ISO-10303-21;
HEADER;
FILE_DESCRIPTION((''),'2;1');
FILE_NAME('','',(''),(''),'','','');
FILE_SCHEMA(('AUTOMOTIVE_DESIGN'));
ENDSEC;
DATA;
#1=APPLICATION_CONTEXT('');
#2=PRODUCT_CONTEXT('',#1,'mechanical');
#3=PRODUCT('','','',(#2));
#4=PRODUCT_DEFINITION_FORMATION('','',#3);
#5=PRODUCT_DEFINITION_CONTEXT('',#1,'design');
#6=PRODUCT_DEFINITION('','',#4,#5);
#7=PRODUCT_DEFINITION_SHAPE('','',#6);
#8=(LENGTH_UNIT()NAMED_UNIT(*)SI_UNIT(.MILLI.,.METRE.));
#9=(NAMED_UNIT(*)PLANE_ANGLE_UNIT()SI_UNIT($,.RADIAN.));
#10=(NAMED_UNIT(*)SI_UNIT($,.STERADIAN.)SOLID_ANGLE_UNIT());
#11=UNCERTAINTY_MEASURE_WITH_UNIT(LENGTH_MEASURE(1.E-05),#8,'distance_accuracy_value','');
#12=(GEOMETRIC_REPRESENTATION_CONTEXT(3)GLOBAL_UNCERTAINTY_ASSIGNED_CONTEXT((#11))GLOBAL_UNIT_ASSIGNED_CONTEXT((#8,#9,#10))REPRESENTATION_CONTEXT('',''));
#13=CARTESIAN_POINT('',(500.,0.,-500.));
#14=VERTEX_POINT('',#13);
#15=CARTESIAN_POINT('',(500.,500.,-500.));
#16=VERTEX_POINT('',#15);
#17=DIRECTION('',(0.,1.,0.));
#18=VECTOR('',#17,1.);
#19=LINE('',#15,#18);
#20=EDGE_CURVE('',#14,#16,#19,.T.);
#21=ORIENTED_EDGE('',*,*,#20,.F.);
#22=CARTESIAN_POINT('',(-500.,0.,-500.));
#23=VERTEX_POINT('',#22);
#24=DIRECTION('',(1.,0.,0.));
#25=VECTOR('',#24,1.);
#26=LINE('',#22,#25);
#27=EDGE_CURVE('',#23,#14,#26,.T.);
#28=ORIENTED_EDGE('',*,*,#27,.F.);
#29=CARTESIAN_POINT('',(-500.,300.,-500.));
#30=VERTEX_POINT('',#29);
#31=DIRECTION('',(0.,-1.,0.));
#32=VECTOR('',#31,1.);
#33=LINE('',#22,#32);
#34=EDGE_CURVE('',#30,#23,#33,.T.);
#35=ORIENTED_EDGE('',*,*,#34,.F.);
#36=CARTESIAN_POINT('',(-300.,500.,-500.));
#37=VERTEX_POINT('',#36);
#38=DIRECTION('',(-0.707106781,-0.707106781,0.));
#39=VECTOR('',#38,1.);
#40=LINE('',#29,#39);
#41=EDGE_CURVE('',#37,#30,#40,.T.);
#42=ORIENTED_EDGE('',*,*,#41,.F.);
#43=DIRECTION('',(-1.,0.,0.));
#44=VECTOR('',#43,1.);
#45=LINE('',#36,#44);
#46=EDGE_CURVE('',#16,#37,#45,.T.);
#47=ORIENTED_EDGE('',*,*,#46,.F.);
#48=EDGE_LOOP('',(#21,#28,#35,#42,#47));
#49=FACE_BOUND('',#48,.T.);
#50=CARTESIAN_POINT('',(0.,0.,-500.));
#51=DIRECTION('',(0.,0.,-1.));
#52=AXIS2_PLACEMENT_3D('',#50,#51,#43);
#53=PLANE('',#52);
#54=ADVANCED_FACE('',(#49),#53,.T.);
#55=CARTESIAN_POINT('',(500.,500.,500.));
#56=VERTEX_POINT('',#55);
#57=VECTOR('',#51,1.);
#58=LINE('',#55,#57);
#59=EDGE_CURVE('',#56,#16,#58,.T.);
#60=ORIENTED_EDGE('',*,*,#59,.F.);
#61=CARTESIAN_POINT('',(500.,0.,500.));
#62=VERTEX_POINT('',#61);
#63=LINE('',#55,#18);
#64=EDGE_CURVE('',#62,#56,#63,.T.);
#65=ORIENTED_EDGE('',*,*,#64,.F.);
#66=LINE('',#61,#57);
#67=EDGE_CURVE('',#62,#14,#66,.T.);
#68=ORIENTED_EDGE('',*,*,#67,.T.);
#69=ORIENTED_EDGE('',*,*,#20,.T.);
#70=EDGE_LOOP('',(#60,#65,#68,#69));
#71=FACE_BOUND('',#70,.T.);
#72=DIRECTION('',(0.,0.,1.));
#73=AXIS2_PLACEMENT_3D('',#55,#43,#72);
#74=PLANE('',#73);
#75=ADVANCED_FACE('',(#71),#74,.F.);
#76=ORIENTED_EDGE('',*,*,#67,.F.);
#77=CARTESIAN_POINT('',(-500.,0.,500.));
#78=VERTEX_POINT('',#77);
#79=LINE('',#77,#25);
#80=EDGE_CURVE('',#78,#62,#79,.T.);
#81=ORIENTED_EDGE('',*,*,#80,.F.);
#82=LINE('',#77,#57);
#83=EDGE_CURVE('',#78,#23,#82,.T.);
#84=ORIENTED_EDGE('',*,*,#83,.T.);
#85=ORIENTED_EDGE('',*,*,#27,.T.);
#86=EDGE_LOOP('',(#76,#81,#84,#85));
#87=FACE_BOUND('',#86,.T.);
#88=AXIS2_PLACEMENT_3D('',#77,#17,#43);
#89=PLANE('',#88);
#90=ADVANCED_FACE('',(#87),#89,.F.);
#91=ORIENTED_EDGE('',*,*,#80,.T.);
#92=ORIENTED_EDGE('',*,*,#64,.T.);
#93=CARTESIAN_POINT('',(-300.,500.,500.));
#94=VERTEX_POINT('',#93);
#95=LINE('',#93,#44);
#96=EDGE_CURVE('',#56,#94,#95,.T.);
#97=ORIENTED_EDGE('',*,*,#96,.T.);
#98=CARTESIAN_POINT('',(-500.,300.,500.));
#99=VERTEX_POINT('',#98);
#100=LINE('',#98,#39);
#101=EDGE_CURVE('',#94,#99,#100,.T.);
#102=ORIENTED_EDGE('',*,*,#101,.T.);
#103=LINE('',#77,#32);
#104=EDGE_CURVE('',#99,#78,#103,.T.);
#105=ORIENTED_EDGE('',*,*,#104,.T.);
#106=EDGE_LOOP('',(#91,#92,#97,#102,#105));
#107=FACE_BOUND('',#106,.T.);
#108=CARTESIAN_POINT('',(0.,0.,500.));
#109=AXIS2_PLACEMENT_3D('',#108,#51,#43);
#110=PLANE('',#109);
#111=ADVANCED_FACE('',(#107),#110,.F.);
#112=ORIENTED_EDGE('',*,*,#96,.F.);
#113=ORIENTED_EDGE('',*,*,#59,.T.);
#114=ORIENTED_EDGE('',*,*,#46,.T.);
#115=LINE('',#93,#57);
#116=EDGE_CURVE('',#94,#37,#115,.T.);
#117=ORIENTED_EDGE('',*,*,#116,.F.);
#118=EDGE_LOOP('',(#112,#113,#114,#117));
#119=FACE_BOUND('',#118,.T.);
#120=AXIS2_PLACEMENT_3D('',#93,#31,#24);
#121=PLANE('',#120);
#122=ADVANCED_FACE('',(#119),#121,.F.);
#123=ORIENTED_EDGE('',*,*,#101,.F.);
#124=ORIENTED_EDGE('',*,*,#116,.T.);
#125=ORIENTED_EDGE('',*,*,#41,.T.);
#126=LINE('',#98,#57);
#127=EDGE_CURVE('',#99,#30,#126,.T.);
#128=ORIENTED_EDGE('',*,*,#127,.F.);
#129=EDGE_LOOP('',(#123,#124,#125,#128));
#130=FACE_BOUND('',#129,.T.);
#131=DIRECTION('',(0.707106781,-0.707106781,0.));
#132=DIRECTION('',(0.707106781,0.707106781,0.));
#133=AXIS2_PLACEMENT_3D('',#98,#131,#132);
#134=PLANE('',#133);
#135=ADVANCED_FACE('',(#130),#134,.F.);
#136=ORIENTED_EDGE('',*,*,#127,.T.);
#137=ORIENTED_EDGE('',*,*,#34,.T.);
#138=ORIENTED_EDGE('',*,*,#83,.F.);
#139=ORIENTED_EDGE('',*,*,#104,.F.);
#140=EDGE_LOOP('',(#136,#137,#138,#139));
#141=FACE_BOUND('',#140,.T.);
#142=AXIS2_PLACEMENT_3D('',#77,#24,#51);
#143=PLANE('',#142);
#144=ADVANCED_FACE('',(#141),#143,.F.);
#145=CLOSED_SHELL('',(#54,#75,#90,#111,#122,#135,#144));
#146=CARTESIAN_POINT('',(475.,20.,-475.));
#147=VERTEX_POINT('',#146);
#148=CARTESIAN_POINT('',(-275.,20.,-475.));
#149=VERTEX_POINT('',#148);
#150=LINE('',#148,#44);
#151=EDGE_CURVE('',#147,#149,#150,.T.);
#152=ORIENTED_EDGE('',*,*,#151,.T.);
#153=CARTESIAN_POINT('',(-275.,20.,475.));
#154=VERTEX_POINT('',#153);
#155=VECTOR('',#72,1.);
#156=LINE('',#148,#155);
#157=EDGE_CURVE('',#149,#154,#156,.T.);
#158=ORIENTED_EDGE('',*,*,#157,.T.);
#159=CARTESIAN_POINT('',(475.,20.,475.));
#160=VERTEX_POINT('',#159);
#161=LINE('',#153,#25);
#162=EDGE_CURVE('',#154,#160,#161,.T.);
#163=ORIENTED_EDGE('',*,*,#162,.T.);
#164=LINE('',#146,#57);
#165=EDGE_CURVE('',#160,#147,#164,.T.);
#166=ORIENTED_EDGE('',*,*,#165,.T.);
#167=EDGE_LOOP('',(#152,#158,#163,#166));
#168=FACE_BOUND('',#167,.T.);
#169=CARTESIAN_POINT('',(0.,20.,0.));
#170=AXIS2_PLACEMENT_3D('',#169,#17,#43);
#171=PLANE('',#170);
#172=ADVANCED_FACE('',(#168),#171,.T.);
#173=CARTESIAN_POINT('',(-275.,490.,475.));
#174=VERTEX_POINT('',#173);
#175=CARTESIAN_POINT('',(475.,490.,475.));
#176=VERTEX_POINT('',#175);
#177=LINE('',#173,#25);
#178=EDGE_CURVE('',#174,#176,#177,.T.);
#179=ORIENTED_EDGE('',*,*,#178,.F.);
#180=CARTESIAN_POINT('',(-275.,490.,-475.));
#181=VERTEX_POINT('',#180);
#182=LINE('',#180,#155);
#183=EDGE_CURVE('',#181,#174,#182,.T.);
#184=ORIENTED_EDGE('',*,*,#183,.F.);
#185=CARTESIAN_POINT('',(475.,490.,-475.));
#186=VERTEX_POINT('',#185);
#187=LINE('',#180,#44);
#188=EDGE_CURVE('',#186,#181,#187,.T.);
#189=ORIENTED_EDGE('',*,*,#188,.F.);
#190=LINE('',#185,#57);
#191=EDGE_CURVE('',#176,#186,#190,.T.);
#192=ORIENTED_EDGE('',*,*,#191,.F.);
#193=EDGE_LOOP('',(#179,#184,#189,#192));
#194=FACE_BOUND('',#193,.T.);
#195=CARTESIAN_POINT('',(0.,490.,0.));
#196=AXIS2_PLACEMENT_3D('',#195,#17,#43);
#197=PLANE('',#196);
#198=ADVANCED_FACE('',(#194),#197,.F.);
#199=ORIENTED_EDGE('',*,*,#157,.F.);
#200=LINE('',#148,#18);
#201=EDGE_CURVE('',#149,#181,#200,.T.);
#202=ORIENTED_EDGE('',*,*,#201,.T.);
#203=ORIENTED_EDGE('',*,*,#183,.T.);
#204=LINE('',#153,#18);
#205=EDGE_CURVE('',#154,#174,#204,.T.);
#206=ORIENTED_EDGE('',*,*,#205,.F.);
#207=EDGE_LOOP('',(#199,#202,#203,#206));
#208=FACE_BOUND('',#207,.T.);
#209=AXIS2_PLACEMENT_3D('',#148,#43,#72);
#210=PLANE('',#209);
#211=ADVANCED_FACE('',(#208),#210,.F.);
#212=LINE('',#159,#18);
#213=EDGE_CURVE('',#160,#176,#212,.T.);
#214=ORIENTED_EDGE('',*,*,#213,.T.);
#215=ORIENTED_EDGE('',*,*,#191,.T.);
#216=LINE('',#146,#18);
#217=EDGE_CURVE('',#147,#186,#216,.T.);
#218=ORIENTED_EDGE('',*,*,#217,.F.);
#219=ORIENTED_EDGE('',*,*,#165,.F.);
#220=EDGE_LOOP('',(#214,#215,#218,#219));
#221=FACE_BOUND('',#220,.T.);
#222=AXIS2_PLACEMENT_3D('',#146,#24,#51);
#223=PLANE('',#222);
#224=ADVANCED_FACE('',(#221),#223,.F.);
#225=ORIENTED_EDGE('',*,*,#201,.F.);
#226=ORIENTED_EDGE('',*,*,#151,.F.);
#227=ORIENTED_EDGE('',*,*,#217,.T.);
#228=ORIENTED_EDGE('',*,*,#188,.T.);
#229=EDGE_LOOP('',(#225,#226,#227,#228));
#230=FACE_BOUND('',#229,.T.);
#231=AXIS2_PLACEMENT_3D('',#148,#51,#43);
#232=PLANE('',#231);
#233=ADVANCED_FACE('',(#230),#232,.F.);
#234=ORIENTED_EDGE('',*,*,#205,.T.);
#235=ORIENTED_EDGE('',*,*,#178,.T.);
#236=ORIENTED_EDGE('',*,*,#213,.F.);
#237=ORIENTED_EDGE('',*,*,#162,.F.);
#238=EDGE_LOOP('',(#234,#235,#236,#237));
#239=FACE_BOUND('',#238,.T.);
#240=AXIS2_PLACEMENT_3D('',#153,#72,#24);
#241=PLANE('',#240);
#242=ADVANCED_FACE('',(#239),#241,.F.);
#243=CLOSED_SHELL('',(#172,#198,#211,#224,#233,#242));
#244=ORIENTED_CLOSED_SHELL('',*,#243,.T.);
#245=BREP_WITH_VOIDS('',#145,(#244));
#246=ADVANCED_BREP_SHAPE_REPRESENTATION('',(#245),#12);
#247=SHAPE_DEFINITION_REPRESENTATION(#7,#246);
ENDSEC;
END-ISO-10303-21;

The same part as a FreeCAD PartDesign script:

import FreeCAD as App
import Part
import Sketcher
from FreeCAD import Vector
Q = App.Units.Quantity

doc = App.newDocument("Part")
params = doc.addObject("Spreadsheet::Sheet", "Params")
for row, (alias, value) in enumerate([
    ("sketch1_width", "1000 mm"),
    ("sketch1_width2", "800 mm"),
    ("sketch1_height", "500 mm"),
    ("sketch1_height2", "300 mm"),
    ("pad1_length", "1000 mm"),
    ("sketch2_width", "750 mm"),
    ("sketch2_height", "950 mm"),
    ("pocket1_length", "480 mm"),
    ("sketch3_width", "750 mm"),
    ("sketch3_height", "950 mm"),
    ("pad2_length", "10 mm"),
], start=1):
    params.set(f"A{row}", alias)
    params.set(f"B{row}", "=" + value)
    params.setAlias(f"B{row}", alias)

body = doc.addObject("PartDesign::Body", "Body")

# Sketch on XY plane
sketch1 = body.newObject("Sketcher::SketchObject", "Sketch")
sketch1.AttachmentSupport = (doc.getObject("XY_Plane"), [""])
sketch1.MapMode = "FlatFace"
sketch1.addGeometry(Part.LineSegment(Vector(-500, 0, 0), Vector(500, 0, 0)), False)
sketch1.addGeometry(Part.LineSegment(Vector(500, 0, 0), Vector(500, 500, 0)), False)
sketch1.addGeometry(Part.LineSegment(Vector(500, 500, 0), Vector(-300, 500, 0)), False)
sketch1.addGeometry(Part.LineSegment(Vector(-300, 500, 0), Vector(-500, 300, 0)), False)
sketch1.addGeometry(Part.LineSegment(Vector(-500, 300, 0), Vector(-500, 0, 0)), False)
sketch1.addConstraint(Sketcher.Constraint("Coincident", 0, 2, 1, 1))
sketch1.addConstraint(Sketcher.Constraint("Coincident", 1, 2, 2, 1))
sketch1.addConstraint(Sketcher.Constraint("Coincident", 2, 2, 3, 1))
sketch1.addConstraint(Sketcher.Constraint("Coincident", 3, 2, 4, 1))
sketch1.addConstraint(Sketcher.Constraint("Coincident", 4, 2, 0, 1))
sketch1.addConstraint(Sketcher.Constraint("Horizontal", 0))
sketch1.addConstraint(Sketcher.Constraint("Vertical", 1))
sketch1.addConstraint(Sketcher.Constraint("Horizontal", 2))
sketch1.addConstraint(Sketcher.Constraint("Vertical", 4))
sketch1.addConstraint(Sketcher.Constraint("Symmetric", 0, 2, 4, 2, -1, 1))
sketch1.addConstraint(Sketcher.Constraint("DistanceX", 0, 1, 0, 2, Q("1000 mm")))
sketch1.addConstraint(Sketcher.Constraint("DistanceX", 2, 2, 2, 1, Q("800 mm")))
sketch1.addConstraint(Sketcher.Constraint("DistanceY", 1, 1, 1, 2, Q("500 mm")))
sketch1.addConstraint(Sketcher.Constraint("DistanceY", 4, 2, 4, 1, Q("300 mm")))
sketch1.setExpression("Constraints[10]", "Params.sketch1_width")
sketch1.setExpression("Constraints[11]", "Params.sketch1_width2")
sketch1.setExpression("Constraints[12]", "Params.sketch1_height")
sketch1.setExpression("Constraints[13]", "Params.sketch1_height2")
pad1 = body.newObject("PartDesign::Pad", "Pad")
pad1.Profile = sketch1
pad1.setExpression("Length", "Params.pad1_length")
pad1.Midplane = True

# Sketch on XZ plane
sketch2 = body.newObject("Sketcher::SketchObject", "Sketch001")
sketch2.AttachmentSupport = (doc.getObject("XZ_Plane"), [""])
sketch2.MapMode = "FlatFace"
sketch2.AttachmentOffset = App.Placement(Vector(0, 0, -500), App.Rotation())
sketch2.addGeometry(Part.LineSegment(Vector(-275, -475, 0), Vector(-275, 475, 0)), False)
sketch2.addGeometry(Part.LineSegment(Vector(-275, 475, 0), Vector(475, 475, 0)), False)
sketch2.addGeometry(Part.LineSegment(Vector(475, 475, 0), Vector(475, -475, 0)), False)
sketch2.addGeometry(Part.LineSegment(Vector(475, -475, 0), Vector(-275, -475, 0)), False)
sketch2.addConstraint(Sketcher.Constraint("Coincident", 0, 2, 1, 1))
sketch2.addConstraint(Sketcher.Constraint("Coincident", 1, 2, 2, 1))
sketch2.addConstraint(Sketcher.Constraint("Coincident", 2, 2, 3, 1))
sketch2.addConstraint(Sketcher.Constraint("Coincident", 3, 2, 0, 1))
sketch2.addConstraint(Sketcher.Constraint("Vertical", 0))
sketch2.addConstraint(Sketcher.Constraint("Horizontal", 1))
sketch2.addConstraint(Sketcher.Constraint("Vertical", 2))
sketch2.addConstraint(Sketcher.Constraint("Horizontal", 3))
sketch2.addConstraint(Sketcher.Constraint("DistanceX", 1, 1, 1, 2, Q("750 mm")))
sketch2.addConstraint(Sketcher.Constraint("DistanceY", 0, 1, 0, 2, Q("950 mm")))
sketch2.addConstraint(Sketcher.Constraint("DistanceX", 0, 2, -1, 1, Q("275 mm")))
sketch2.addConstraint(Sketcher.Constraint("DistanceY", -1, 1, 0, 2, Q("475 mm")))
sketch2.setExpression("Constraints[8]", "Params.sketch2_width")
sketch2.setExpression("Constraints[9]", "Params.sketch2_height")
pocket1 = body.newObject("PartDesign::Pocket", "Pocket")
pocket1.Profile = sketch2
pocket1.setExpression("Length", "Params.pocket1_length")
pocket1.Reversed = True

# Sketch on XZ plane
sketch3 = body.newObject("Sketcher::SketchObject", "Sketch002")
sketch3.AttachmentSupport = (doc.getObject("XZ_Plane"), [""])
sketch3.MapMode = "FlatFace"
sketch3.AttachmentOffset = App.Placement(Vector(0, 0, -500), App.Rotation())
sketch3.addGeometry(Part.LineSegment(Vector(-275, -475, 0), Vector(-275, 475, 0)), False)
sketch3.addGeometry(Part.LineSegment(Vector(-275, 475, 0), Vector(475, 475, 0)), False)
sketch3.addGeometry(Part.LineSegment(Vector(475, 475, 0), Vector(475, -475, 0)), False)
sketch3.addGeometry(Part.LineSegment(Vector(475, -475, 0), Vector(-275, -475, 0)), False)
sketch3.addConstraint(Sketcher.Constraint("Coincident", 0, 2, 1, 1))
sketch3.addConstraint(Sketcher.Constraint("Coincident", 1, 2, 2, 1))
sketch3.addConstraint(Sketcher.Constraint("Coincident", 2, 2, 3, 1))
sketch3.addConstraint(Sketcher.Constraint("Coincident", 3, 2, 0, 1))
sketch3.addConstraint(Sketcher.Constraint("Vertical", 0))
sketch3.addConstraint(Sketcher.Constraint("Horizontal", 1))
sketch3.addConstraint(Sketcher.Constraint("Vertical", 2))
sketch3.addConstraint(Sketcher.Constraint("Horizontal", 3))
sketch3.addConstraint(Sketcher.Constraint("DistanceX", 1, 1, 1, 2, Q("750 mm")))
sketch3.addConstraint(Sketcher.Constraint("DistanceY", 0, 1, 0, 2, Q("950 mm")))
sketch3.addConstraint(Sketcher.Constraint("DistanceX", 0, 2, -1, 1, Q("275 mm")))
sketch3.addConstraint(Sketcher.Constraint("DistanceY", -1, 1, 0, 2, Q("475 mm")))
sketch3.setExpression("Constraints[8]", "Params.sketch3_width")
sketch3.setExpression("Constraints[9]", "Params.sketch3_height")
pad2 = body.newObject("PartDesign::Pad", "Pad001")
pad2.Profile = sketch3
pad2.setExpression("Length", "Params.pad2_length")

doc.recompute()
